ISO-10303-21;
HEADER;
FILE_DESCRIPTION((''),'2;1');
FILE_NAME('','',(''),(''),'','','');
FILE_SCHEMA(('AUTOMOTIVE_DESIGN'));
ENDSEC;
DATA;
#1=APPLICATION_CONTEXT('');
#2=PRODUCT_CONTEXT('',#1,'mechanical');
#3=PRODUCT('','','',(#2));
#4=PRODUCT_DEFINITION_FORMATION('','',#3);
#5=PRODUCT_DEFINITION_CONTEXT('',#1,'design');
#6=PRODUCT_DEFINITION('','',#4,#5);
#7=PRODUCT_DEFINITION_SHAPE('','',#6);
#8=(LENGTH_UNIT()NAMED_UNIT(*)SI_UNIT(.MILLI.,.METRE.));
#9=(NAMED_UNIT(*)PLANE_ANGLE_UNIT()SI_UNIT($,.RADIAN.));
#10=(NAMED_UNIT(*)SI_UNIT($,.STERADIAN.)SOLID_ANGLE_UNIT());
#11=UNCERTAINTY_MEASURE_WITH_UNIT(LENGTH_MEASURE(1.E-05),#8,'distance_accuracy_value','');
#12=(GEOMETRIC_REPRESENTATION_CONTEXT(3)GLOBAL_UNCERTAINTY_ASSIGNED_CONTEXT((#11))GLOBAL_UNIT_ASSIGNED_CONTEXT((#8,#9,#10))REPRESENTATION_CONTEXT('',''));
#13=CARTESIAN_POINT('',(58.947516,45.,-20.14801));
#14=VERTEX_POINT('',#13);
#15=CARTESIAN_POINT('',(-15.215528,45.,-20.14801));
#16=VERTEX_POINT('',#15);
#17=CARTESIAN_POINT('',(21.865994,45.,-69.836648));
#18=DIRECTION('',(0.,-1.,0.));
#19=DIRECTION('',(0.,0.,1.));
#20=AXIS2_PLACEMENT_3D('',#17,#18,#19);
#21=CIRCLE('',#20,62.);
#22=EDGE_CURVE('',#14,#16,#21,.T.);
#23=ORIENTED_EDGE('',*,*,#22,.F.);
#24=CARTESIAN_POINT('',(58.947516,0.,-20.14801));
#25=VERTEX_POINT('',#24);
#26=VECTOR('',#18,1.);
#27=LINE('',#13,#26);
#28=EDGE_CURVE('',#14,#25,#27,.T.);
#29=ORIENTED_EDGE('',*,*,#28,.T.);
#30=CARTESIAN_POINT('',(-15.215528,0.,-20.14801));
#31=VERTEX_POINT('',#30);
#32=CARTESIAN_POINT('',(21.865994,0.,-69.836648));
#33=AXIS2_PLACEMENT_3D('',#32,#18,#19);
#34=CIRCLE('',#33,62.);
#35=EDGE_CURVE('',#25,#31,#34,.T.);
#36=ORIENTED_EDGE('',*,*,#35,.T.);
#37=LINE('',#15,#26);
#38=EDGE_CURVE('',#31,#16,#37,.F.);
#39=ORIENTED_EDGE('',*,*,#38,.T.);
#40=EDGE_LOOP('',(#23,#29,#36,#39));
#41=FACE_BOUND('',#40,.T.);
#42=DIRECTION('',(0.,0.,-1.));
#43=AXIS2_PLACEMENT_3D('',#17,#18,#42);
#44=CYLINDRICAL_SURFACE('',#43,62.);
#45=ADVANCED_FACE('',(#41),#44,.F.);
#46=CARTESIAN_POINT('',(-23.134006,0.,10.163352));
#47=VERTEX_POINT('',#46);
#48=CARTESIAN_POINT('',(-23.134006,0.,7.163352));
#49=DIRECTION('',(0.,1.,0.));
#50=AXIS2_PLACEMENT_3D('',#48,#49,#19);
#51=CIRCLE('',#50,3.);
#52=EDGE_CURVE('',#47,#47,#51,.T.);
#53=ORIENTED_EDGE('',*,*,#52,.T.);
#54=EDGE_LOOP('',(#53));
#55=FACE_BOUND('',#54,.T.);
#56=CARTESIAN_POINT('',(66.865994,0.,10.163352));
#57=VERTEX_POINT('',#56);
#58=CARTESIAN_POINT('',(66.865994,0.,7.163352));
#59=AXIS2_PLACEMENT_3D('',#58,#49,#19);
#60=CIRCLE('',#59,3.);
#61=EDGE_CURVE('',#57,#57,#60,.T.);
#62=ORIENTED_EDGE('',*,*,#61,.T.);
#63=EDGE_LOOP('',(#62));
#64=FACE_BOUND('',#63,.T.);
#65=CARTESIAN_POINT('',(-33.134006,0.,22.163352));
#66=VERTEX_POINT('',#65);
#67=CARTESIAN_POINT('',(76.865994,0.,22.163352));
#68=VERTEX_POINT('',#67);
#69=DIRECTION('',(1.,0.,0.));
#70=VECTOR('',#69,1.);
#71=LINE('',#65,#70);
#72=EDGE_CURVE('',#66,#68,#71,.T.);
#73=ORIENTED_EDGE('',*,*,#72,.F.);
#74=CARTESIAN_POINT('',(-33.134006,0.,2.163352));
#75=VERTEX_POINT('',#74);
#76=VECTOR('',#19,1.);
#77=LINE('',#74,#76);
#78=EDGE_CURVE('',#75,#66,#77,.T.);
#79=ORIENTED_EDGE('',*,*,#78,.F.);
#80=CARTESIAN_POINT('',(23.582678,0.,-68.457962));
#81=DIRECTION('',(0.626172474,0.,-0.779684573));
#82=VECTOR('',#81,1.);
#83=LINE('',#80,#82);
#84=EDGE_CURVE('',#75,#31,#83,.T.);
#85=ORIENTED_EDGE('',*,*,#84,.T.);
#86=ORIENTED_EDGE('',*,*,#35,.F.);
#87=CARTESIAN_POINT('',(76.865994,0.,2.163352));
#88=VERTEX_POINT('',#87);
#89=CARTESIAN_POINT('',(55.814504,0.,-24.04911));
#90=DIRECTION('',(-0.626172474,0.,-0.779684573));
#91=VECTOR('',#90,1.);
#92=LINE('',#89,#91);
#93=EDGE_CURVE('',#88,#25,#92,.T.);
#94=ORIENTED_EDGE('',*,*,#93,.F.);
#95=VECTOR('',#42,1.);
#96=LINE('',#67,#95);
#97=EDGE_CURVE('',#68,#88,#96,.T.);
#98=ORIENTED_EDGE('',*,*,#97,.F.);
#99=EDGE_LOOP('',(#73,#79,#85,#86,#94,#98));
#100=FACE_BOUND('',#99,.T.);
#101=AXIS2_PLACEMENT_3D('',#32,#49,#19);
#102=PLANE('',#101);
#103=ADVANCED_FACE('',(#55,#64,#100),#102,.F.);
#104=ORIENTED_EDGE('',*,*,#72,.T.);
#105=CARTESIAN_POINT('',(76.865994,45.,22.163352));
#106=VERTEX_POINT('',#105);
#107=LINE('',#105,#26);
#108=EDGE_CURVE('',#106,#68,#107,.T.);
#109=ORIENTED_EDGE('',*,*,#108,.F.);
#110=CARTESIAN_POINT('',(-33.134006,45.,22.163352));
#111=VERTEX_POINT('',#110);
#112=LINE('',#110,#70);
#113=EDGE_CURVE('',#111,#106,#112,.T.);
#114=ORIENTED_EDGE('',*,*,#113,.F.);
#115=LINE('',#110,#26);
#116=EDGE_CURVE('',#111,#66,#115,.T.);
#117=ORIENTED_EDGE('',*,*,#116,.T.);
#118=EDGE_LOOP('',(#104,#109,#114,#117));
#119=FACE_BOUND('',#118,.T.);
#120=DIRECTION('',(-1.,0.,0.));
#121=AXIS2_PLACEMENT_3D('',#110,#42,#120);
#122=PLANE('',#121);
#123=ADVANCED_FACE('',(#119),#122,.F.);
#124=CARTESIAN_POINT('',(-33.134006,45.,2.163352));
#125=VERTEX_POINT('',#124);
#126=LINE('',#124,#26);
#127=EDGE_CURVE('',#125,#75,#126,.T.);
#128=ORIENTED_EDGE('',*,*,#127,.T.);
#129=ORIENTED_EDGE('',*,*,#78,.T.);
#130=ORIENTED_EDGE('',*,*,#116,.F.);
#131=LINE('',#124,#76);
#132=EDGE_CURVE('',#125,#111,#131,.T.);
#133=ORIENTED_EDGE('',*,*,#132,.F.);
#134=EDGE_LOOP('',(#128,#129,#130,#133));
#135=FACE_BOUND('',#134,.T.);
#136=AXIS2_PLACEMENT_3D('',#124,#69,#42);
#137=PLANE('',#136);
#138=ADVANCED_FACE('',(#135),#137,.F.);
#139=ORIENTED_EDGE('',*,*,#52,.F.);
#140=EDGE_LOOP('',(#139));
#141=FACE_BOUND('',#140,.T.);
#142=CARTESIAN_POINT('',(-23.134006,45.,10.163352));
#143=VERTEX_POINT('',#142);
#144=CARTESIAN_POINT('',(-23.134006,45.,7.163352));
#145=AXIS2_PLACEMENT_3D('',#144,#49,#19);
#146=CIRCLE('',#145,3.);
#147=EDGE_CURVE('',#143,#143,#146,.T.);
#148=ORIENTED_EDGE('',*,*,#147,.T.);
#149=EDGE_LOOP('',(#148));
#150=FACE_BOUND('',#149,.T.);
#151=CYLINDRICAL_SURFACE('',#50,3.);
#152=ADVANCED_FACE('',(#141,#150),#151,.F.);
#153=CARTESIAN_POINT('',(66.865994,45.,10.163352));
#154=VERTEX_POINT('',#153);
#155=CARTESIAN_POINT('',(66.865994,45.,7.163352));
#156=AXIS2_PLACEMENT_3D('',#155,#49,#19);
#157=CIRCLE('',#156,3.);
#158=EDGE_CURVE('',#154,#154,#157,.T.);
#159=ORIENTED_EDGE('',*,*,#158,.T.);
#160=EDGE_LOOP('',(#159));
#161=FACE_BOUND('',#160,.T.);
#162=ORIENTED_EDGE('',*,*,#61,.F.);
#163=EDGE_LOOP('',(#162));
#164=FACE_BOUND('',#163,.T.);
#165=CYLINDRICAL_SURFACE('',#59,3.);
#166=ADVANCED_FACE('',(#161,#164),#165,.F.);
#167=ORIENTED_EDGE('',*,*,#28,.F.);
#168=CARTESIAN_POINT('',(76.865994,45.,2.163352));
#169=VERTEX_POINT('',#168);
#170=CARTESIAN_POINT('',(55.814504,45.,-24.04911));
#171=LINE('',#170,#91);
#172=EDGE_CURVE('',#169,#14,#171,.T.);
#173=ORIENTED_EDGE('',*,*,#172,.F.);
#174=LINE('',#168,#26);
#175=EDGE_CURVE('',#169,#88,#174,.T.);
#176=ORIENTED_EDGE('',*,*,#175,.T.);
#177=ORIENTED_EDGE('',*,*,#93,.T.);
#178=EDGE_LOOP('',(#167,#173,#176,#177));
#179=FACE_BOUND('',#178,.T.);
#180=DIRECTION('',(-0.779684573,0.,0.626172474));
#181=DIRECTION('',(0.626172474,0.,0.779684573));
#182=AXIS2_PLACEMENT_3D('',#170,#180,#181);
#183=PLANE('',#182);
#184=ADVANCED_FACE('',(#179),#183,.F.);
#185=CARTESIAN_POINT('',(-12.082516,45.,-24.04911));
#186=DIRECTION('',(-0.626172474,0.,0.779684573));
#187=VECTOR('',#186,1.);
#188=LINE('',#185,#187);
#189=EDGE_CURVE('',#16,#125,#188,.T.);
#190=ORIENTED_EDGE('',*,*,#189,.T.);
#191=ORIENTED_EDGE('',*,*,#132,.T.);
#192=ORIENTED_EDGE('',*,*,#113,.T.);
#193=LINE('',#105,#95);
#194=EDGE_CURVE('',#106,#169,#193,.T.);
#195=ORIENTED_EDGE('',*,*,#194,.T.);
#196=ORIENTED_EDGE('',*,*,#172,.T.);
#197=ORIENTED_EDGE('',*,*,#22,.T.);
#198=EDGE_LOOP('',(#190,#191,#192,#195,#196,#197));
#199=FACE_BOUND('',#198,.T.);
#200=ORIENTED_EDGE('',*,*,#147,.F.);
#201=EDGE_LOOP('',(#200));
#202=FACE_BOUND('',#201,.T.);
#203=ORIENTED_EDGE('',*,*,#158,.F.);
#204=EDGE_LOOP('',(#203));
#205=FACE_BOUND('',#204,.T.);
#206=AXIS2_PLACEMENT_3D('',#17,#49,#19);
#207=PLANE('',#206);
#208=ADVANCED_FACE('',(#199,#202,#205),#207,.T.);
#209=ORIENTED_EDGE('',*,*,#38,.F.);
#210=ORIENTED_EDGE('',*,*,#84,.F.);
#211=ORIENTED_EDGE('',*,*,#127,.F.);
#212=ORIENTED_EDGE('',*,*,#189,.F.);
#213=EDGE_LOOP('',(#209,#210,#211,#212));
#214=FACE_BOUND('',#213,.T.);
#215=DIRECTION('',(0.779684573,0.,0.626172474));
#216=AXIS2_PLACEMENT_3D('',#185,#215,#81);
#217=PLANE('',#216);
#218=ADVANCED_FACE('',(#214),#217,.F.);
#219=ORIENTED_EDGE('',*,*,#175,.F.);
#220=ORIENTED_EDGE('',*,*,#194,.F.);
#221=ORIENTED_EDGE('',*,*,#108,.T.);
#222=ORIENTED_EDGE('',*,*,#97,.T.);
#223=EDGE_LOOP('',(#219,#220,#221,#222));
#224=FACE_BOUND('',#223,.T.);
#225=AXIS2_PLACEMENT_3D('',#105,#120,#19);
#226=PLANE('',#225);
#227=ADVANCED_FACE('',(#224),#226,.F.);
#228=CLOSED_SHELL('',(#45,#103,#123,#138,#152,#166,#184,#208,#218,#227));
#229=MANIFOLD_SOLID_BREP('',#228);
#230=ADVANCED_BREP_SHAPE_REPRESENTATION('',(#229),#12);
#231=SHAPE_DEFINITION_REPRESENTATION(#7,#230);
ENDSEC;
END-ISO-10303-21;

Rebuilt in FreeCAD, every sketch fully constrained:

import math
import FreeCAD as App
import Part
import Sketcher
Q = App.Units.Quantity


def add_polygon(sketch, points):
    """Adds a closed chain of lines whose ends are joined by coincident constraints."""
    first, n = sketch.GeometryCount, len(points)
    for a, b in zip(points, points[1:] + points[:1]):
        sketch.addGeometry(Part.LineSegment(App.Vector(*a, 0), App.Vector(*b, 0)), False)
    for i in range(n):
        sketch.addConstraint(Sketcher.Constraint("Coincident", first + i, 2, first + (i + 1) % n, 1))

doc = App.newDocument("Part")
body = doc.addObject("PartDesign::Body", "Body")

# Sketch on XZ plane
sketch1 = body.newObject("Sketcher::SketchObject", "Sketch")
sketch1.AttachmentSupport = (doc.getObject("XZ_Plane"), [""])
sketch1.MapMode = "FlatFace"
sketch1.addGeometry([
    Part.LineSegment(App.Vector(-33, 22, 0), App.Vector(77, 22, 0)),  # 0
    Part.LineSegment(App.Vector(77, 22, 0), App.Vector(77, 2, 0)),  # 1
    Part.LineSegment(App.Vector(77, 2, 0), App.Vector(62, -23, 0)),  # 2
    Part.ArcOfCircle(Part.Circle(App.Vector(22, -70, 0), App.Vector(0, 0, 1), 62), math.radians(49), math.radians(131)),  # 3
    Part.LineSegment(App.Vector(-19, -23, 0), App.Vector(-33, 2, 0)),  # 4
    Part.LineSegment(App.Vector(-33, 2, 0), App.Vector(-33, 22, 0)),  # 5
], False)
sketch1.addConstraint([
    Sketcher.Constraint("Coincident", 0, 2, 1, 1),
    Sketcher.Constraint("Coincident", 1, 2, 2, 1),
    Sketcher.Constraint("Coincident", 2, 2, 3, 1),
    Sketcher.Constraint("Coincident", 3, 2, 4, 1),
    Sketcher.Constraint("Coincident", 4, 2, 5, 1),
    Sketcher.Constraint("Coincident", 5, 2, 0, 1),
    Sketcher.Constraint("Horizontal", 0),
    Sketcher.Constraint("Vertical", 1),
    Sketcher.Constraint("Vertical", 5),
    Sketcher.Constraint("Horizontal", 2, 2, 3, 2),
    Sketcher.Constraint("Horizontal", 1, 2, 4, 2),
    Sketcher.Constraint("Equal", 2, 4),
    Sketcher.Constraint("Radius", 3, Q("62 mm")),
    Sketcher.Constraint("DistanceX", 0, 1, 0, 2, Q("110 mm")),
    Sketcher.Constraint("DistanceY", 1, 2, 1, 1, Q("20 mm")),
    Sketcher.Constraint("Angle", 2, Q("-120 deg")),
    Sketcher.Constraint("DistanceY", 3, 3, 0, 2, Q("92 mm")),
    Sketcher.Constraint("DistanceX", -1, 1, 2, 2, Q("62.388672 mm")),
    Sketcher.Constraint("DistanceY", 3, 3, -1, 1, Q("69.836648 mm")),
])
pad1 = body.newObject("PartDesign::Pad", "Pad")
pad1.Profile = sketch1
pad1.Length = 45
pad1.Reversed = True

# Sketch on XZ plane
sketch2 = body.newObject("Sketcher::SketchObject", "Sketch001")
sketch2.AttachmentSupport = (doc.getObject("XZ_Plane"), [""])
sketch2.MapMode = "FlatFace"
sketch2.AttachmentOffset = App.Placement(App.Vector(0, 0, -45), App.Rotation())
sketch2.addGeometry([
    Part.Circle(App.Vector(-23.1, 7.2, 0), App.Vector(0, 0, 1), 3),
    Part.Circle(App.Vector(66.9, 7.2, 0), App.Vector(0, 0, 1), 3),
], False)
sketch2.addConstraint([
    Sketcher.Constraint("Equal", 0, 1),
    Sketcher.Constraint("Horizontal", 0, 3, 1, 3),
    Sketcher.Constraint("Diameter", 0, Q("6 mm")),
    Sketcher.Constraint("DistanceX", 0, 3, 1, 3, Q("90 mm")),
    Sketcher.Constraint("DistanceX", 0, 3, -1, 1, Q("23.134006 mm")),
    Sketcher.Constraint("DistanceY", -1, 1, 0, 3, Q("7.163352 mm")),
])
pocket1 = body.newObject("PartDesign::Pocket", "Pocket")
pocket1.Profile = sketch2
pocket1.Type = "ThroughAll"
pocket1.Reversed = True

# Sketch on XZ plane
sketch3 = body.newObject("Sketcher::SketchObject", "Sketch002")
sketch3.AttachmentSupport = (doc.getObject("XZ_Plane"), [""])
sketch3.MapMode = "FlatFace"
add_polygon(sketch3, [(-12.082516, -24.04911), (-33.134006, 2.163352), (-36.114163, -37.146189)])  # lines 0-2
add_polygon(sketch3, [(55.814504, -24.04911), (79.846152, -37.146189), (76.865994, 2.163352)])  # lines 3-5
sketch3.addConstraint([
    Sketcher.Constraint("DistanceX", 0, 2, 4, 2, Q("110 mm")),
    Sketcher.Constraint("DistanceY", 1, 2, -1, 1, Q("37.146189 mm")),
    Sketcher.Constraint("DistanceY", 2, 2, -1, 1, Q("24.04911 mm")),
    Sketcher.Constraint("DistanceX", -1, 1, 3, 2, Q("79.846152 mm")),
    Sketcher.Constraint("DistanceY", 3, 2, -1, 1, Q("37.146189 mm")),
    Sketcher.Constraint("DistanceY", 5, 2, -1, 1, Q("24.04911 mm")),
    Sketcher.Constraint("DistanceY", 1, 2, 0, 2, Q("39.309541 mm")),
    Sketcher.Constraint("DistanceX", 0, 2, 2, 2, Q("21.05149 mm")),
    Sketcher.Constraint("DistanceY", 3, 2, 4, 2, Q("39.309541 mm")),
    Sketcher.Constraint("DistanceX", 5, 2, 4, 2, Q("21.05149 mm")),
    Sketcher.Constraint("Distance", 1, Q("39.422345 mm")),
    Sketcher.Constraint("Distance", 3, Q("27.368843 mm")),
])
pocket2 = body.newObject("PartDesign::Pocket", "Pocket001")
pocket2.Profile = sketch3
pocket2.Type = "ThroughAll"

doc.recompute()
